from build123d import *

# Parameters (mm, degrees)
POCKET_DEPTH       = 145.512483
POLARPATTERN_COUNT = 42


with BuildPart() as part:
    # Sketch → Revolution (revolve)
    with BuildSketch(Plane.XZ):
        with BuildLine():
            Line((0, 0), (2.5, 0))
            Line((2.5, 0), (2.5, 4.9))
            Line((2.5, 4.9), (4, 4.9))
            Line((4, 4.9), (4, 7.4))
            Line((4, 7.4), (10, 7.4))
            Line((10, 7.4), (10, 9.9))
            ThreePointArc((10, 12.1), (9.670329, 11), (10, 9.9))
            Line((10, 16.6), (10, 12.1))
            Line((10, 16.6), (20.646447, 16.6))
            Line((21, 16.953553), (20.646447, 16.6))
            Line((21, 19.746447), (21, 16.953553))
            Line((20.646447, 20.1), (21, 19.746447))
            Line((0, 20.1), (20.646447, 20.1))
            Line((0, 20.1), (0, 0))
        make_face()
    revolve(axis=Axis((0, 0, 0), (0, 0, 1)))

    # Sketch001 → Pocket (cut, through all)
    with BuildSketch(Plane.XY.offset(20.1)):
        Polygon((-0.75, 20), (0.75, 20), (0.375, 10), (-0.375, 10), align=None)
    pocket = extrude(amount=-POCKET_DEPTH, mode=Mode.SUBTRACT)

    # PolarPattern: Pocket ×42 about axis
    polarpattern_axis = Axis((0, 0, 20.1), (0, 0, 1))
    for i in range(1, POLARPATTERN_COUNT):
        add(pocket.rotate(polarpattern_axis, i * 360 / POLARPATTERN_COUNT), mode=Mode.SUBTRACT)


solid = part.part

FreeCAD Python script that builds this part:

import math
import FreeCAD as App
import Part
import Sketcher

V = App.Vector

doc = App.newDocument("Part")
body = doc.addObject("PartDesign::Body", "Body")

# Sketch on XZ plane
sketch1 = body.newObject("Sketcher::SketchObject", "Sketch")
sketch1.AttachmentSupport = (doc.getObject("XZ_Plane"), [""])
sketch1.MapMode = "FlatFace"
sketch1.addGeometry([
    Part.LineSegment(V(0, 0, 0), V(2.5, 0, 0)),  # 0
    Part.LineSegment(V(2.5, 0, 0), V(2.5, 4.9, 0)),  # 1
    Part.LineSegment(V(2.5, 4.9, 0), V(4, 4.9, 0)),  # 2
    Part.LineSegment(V(4, 4.9, 0), V(4, 7.4, 0)),  # 3
    Part.LineSegment(V(4, 7.4, 0), V(10, 7.4, 0)),  # 4
    Part.LineSegment(V(10, 7.4, 0), V(10, 9.9, 0)),  # 5
    Part.ArcOfCircle(Part.Circle(V(11.67, 11, 0), V(0, 0, 1), 2), math.radians(147), math.radians(213)),  # 6
    Part.LineSegment(V(10, 12.1, 0), V(10, 16.6, 0)),  # 7
    Part.LineSegment(V(10, 16.6, 0), V(20.65, 16.6, 0)),  # 8
    Part.LineSegment(V(20.65, 16.6, 0), V(21, 16.95, 0)),  # 9
    Part.LineSegment(V(21, 16.95, 0), V(21, 19.75, 0)),  # 10
    Part.LineSegment(V(21, 19.75, 0), V(20.65, 20.1, 0)),  # 11
    Part.LineSegment(V(20.65, 20.1, 0), V(0, 20.1, 0)),  # 12
    Part.LineSegment(V(0, 20.1, 0), V(0, 0, 0)),  # 13
], False)
sketch1.addConstraint([
    Sketcher.Constraint("Coincident", 0, 2, 1, 1),
    Sketcher.Constraint("Coincident", 1, 2, 2, 1),
    Sketcher.Constraint("Coincident", 2, 2, 3, 1),
    Sketcher.Constraint("Coincident", 3, 2, 4, 1),
    Sketcher.Constraint("Coincident", 4, 2, 5, 1),
    Sketcher.Constraint("Coincident", 5, 2, 6, 2),
    Sketcher.Constraint("Coincident", 6, 1, 7, 1),
    Sketcher.Constraint("Coincident", 7, 2, 8, 1),
    Sketcher.Constraint("Coincident", 8, 2, 9, 1),
    Sketcher.Constraint("Coincident", 9, 2, 10, 1),
    Sketcher.Constraint("Coincident", 10, 2, 11, 1),
    Sketcher.Constraint("Coincident", 11, 2, 12, 1),
    Sketcher.Constraint("Coincident", 12, 2, 13, 1),
    Sketcher.Constraint("Coincident", 13, 2, 0, 1),
    Sketcher.Constraint("Horizontal", 0),
    Sketcher.Constraint("Vertical", 1),
    Sketcher.Constraint("Horizontal", 2),
    Sketcher.Constraint("Vertical", 3),
    Sketcher.Constraint("Horizontal", 4),
    Sketcher.Constraint("Vertical", 5),
    Sketcher.Constraint("Vertical", 7),
    Sketcher.Constraint("Horizontal", 8),
    Sketcher.Constraint("Vertical", 10),
    Sketcher.Constraint("Horizontal", 12),
    Sketcher.Constraint("Vertical", 13),
    Sketcher.Constraint("Coincident", 13, 2, -1, 1),
    Sketcher.Constraint("Perpendicular", 9, 11),
    Sketcher.Constraint("Vertical", 5, 2, 6, 1),
    Sketcher.Constraint("Vertical", 8, 2, 11, 2),
    Sketcher.Constraint("Equal", 0, 3),
    Sketcher.Constraint("Equal", 3, 5),
    Sketcher.Constraint("Equal", 9, 11),
    Sketcher.Constraint("Radius", 6, 1.999998),
    Sketcher.Constraint("DistanceX", 4, 1, 4, 2, 6.0),
    Sketcher.Constraint("DistanceX", 0, 1, 0, 2, 2.5),
    Sketcher.Constraint("DistanceX", 2, 1, 2, 2, 1.5),
    Sketcher.Constraint("DistanceY", 1, 1, 1, 2, 4.9),
    Sketcher.Constraint("DistanceY", 7, 1, 7, 2, 4.5),
    Sketcher.Constraint("DistanceY", 13, 2, 13, 1, 20.1),
    Sketcher.Constraint("DistanceY", -1, 1, 6, 3, 11.0),
    Sketcher.Constraint("DistanceX", -1, 1, 9, 2, 21.0),
    Sketcher.Constraint("Distance", 9, 0.499999),
])
revolution = body.newObject("PartDesign::Revolution", "Revolution")
revolution.Profile = sketch1
revolution.ReferenceAxis = (sketch1, ["V_Axis"])
revolution.Angle = 360

# Sketch on XY plane
sketch2 = body.newObject("Sketcher::SketchObject", "Sketch001")
sketch2.AttachmentSupport = (doc.getObject("XY_Plane"), [""])
sketch2.MapMode = "FlatFace"
sketch2.AttachmentOffset = App.Placement(V(0, 0, 20.1), App.Rotation())
sketch2.addGeometry([
    Part.LineSegment(V(0.8, 20, 0), V(-0.8, 20, 0)),
    Part.LineSegment(V(-0.8, 20, 0), V(-0.4, 10, 0)),
    Part.LineSegment(V(-0.4, 10, 0), V(0.4, 10, 0)),
    Part.LineSegment(V(0.4, 10, 0), V(0.8, 20, 0)),
], False)
sketch2.addConstraint([
    Sketcher.Constraint("Coincident", 0, 2, 1, 1),
    Sketcher.Constraint("Coincident", 1, 2, 2, 1),
    Sketcher.Constraint("Coincident", 2, 2, 3, 1),
    Sketcher.Constraint("Coincident", 3, 2, 0, 1),
    Sketcher.Constraint("Horizontal", 0),
    Sketcher.Constraint("Horizontal", 2),
    Sketcher.Constraint("Equal", 1, 3),
    Sketcher.Constraint("DistanceX", 0, 2, 0, 1, 1.5),
    Sketcher.Constraint("DistanceY", -1, 1, 0, 2, 20.0),
    Sketcher.Constraint("DistanceY", -1, 1, 1, 2, 10.0),
    Sketcher.Constraint("DistanceX", 2, 1, 2, 2, 0.75),
    Sketcher.Constraint("DistanceX", 0, 2, -1, 1, 0.75),
])
pocket1 = body.newObject("PartDesign::Pocket", "Pocket")
pocket1.Profile = sketch2
pocket1.Type = "ThroughAll"
doc.recompute()

polarpattern = body.newObject("PartDesign::PolarPattern", "PolarPattern")
polarpattern.Originals = [pocket1]
polarpattern.Axis = (doc.getObject("Z_Axis"), [""])
polarpattern.Angle = 360
polarpattern.Occurrences = 42
body.Tip = polarpattern

doc.recompute()
